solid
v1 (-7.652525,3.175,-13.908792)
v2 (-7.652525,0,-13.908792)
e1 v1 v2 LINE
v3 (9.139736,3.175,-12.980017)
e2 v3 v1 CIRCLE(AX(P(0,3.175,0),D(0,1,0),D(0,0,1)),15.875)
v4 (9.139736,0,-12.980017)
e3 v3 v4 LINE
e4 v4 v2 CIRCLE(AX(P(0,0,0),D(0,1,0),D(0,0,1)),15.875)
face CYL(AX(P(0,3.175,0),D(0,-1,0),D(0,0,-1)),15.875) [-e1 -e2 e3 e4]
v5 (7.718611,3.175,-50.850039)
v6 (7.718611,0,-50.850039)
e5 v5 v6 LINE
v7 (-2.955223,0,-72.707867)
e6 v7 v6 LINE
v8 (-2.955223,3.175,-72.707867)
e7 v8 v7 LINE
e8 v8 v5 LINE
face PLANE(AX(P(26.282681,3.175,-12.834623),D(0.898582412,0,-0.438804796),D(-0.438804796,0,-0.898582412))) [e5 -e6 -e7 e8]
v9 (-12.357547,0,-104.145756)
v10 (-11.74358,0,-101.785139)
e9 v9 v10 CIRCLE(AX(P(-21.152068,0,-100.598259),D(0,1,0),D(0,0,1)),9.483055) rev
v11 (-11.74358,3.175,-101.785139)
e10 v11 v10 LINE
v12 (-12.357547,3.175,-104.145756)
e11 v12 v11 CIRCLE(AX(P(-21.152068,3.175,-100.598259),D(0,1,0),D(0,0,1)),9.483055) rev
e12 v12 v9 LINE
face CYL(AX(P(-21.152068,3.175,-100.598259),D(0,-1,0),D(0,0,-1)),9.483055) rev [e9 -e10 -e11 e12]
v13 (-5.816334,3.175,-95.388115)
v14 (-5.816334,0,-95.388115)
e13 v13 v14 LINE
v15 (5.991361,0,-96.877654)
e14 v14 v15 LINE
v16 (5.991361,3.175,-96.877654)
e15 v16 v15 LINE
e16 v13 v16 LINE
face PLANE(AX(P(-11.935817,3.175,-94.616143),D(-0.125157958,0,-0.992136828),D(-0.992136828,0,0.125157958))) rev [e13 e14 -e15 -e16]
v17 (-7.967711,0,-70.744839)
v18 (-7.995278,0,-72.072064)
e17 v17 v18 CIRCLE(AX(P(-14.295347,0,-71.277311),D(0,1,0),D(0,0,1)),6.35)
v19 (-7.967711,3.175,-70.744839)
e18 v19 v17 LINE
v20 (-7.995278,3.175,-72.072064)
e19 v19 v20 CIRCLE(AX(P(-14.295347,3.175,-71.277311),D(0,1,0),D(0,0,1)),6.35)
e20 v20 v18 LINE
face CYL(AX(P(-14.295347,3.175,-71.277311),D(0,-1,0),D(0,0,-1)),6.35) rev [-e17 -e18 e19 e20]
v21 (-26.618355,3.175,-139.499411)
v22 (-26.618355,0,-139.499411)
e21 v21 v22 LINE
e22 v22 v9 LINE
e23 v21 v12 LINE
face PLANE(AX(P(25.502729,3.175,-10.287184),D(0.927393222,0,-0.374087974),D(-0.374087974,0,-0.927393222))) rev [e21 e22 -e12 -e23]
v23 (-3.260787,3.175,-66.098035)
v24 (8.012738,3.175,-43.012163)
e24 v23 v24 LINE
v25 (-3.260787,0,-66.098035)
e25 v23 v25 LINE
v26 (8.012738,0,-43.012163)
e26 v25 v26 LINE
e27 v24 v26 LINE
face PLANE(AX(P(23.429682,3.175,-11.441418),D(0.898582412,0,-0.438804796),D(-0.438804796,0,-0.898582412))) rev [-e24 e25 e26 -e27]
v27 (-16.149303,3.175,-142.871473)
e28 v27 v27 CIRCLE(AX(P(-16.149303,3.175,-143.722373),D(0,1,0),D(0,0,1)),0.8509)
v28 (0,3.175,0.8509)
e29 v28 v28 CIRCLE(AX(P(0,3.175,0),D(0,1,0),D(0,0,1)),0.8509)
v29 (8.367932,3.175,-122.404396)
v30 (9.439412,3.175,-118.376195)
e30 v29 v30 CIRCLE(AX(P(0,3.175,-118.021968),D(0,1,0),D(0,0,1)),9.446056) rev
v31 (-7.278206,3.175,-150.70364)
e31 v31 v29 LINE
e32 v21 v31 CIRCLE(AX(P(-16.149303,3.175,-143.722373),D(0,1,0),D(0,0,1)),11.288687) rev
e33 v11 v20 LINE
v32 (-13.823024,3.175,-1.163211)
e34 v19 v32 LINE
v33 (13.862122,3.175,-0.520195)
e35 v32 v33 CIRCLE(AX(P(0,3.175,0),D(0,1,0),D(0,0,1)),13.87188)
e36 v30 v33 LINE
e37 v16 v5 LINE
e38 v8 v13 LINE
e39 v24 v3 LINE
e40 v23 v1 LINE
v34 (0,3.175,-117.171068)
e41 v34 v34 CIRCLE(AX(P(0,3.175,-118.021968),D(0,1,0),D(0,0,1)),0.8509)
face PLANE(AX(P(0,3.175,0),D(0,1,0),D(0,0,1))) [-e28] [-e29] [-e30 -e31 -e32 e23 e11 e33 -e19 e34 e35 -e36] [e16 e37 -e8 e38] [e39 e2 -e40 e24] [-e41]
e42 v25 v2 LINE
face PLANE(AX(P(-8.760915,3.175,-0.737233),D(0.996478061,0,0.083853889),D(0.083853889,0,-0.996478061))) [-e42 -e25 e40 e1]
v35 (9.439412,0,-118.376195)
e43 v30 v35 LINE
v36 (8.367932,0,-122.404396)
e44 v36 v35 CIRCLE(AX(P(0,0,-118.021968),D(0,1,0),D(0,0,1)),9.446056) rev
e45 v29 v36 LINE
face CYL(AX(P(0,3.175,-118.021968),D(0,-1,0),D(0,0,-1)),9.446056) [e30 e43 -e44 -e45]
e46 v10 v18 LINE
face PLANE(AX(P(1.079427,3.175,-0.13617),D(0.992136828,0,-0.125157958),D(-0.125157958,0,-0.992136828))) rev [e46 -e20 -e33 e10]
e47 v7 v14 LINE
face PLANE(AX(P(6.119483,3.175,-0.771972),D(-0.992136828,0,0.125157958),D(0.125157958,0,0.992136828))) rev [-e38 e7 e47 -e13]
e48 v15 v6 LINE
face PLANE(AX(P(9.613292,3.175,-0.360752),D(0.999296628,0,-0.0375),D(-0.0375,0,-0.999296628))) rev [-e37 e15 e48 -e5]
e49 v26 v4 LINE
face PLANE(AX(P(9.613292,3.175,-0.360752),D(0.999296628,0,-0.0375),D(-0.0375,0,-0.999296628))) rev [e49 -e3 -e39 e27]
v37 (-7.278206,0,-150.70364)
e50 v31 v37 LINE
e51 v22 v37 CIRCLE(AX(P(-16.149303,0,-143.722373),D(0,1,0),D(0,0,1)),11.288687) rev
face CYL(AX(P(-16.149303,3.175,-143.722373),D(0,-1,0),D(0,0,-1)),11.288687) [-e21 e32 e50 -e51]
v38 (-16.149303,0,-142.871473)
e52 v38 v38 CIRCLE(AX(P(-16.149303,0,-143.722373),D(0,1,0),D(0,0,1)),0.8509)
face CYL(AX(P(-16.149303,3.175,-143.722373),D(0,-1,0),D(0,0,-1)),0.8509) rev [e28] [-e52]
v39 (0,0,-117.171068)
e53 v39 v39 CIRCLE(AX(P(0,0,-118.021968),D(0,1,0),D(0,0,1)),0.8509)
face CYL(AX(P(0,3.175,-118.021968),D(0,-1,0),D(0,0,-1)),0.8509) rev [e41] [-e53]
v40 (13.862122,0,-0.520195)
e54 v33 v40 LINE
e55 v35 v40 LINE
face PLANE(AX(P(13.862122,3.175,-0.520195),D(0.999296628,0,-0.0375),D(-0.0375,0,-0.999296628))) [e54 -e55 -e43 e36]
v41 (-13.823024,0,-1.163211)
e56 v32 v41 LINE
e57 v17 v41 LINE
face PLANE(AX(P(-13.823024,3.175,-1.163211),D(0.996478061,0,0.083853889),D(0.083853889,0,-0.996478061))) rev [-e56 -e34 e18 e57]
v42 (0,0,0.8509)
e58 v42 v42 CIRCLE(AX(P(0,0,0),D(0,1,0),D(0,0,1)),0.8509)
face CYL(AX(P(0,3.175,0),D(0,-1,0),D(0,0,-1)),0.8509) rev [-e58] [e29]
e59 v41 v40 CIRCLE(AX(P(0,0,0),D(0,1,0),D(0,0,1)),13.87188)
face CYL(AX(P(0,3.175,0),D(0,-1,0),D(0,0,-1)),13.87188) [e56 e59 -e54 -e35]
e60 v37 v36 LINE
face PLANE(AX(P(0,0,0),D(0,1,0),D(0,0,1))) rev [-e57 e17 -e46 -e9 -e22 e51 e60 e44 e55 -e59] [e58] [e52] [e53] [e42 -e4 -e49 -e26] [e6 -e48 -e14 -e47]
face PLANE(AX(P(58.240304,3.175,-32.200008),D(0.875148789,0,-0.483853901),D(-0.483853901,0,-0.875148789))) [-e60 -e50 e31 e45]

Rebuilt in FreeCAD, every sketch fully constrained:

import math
import FreeCAD as App
import Part
import Sketcher
from FreeCAD import Vector
Q = App.Units.Quantity

doc = App.newDocument("Part")
body = doc.addObject("PartDesign::Body", "Body")

sketch1 = body.newObject("Sketcher::SketchObject", "Sketch")
sketch1.AttachmentSupport = (doc.getObject("XZ_Plane"), [""])
sketch1.MapMode = "FlatFace"
sketch1.addGeometry([
    Part.LineSegment(Vector(-26.6, -139.5, 0), Vector(-12.4, -104.1, 0)),
    Part.ArcOfCircle(Part.Circle(Vector(-21.2, -100.6, 0), Vector(0, 0, 1), 9.5), math.radians(-21.97), math.radians(-7.19)),
    Part.LineSegment(Vector(-11.7, -101.8, 0), Vector(-8, -72.1, 0)),
    Part.ArcOfCircle(Part.Circle(Vector(-14.3, -71.3, 0), Vector(0, 0, 1), 6.3), math.radians(-7.19), math.radians(4.81)),
    Part.LineSegment(Vector(-8, -70.7, 0), Vector(-13.8, -1.2, 0)),
    Part.ArcOfCircle(Part.Circle(Vector(0, 0, 0), Vector(0, 0, 1), 13.9), math.radians(-2), math.radians(185)),
    Part.LineSegment(Vector(13.9, -0.5, 0), Vector(11.1, -73.1, 0)),
    Part.LineSegment(Vector(11.1, -73.1, 0), Vector(9.4, -118.4, 0)),
    Part.ArcOfCircle(Part.Circle(Vector(0, -118, 0), Vector(0, 0, 1), 9.4), math.radians(-28), math.radians(-2)),
    Part.LineSegment(Vector(8.4, -122.4, 0), Vector(-7.3, -150.7, 0)),
    Part.ArcOfCircle(Part.Circle(Vector(-16.1, -143.7, 0), Vector(0, 0, 1), 11.3), math.radians(158), math.radians(322)),
    Part.Circle(Vector(0, 0, 0), Vector(0, 0, 1), 0.9),
    Part.LineSegment(Vector(-7.7, -13.9, 0), Vector(-3.3, -66.1, 0)),
    Part.LineSegment(Vector(-3.3, -66.1, 0), Vector(8, -43, 0)),
    Part.LineSegment(Vector(8, -43, 0), Vector(9.1, -13, 0)),
    Part.ArcOfCircle(Part.Circle(Vector(0, 0, 0), Vector(0, 0, 1), 15.9), math.radians(-119), math.radians(-55)),
    Part.LineSegment(Vector(6, -96.9, 0), Vector(7.7, -50.9, 0)),
    Part.LineSegment(Vector(7.7, -50.9, 0), Vector(-3, -72.7, 0)),
    Part.LineSegment(Vector(-3, -72.7, 0), Vector(-5.8, -95.4, 0)),
    Part.LineSegment(Vector(-5.8, -95.4, 0), Vector(6, -96.9, 0)),
    Part.Circle(Vector(-16.1, -143.7, 0), Vector(0, 0, 1), 0.9),
    Part.Circle(Vector(0, -118, 0), Vector(0, 0, 1), 0.9),
], False)
sketch1.addConstraint([
    Sketcher.Constraint("Tangent", 0, 2, 1, 1),
    Sketcher.Constraint("Tangent", 1, 2, 2, 1),
    Sketcher.Constraint("Tangent", 2, 2, 3, 1),
    Sketcher.Constraint("Tangent", 3, 2, 4, 1),
    Sketcher.Constraint("Tangent", 4, 2, 5, 2),
    Sketcher.Constraint("Tangent", 5, 1, 6, 1),
    Sketcher.Constraint("Coincident", 6, 2, 7, 1),
    Sketcher.Constraint("Tangent", 7, 2, 8, 2),
    Sketcher.Constraint("Coincident", 8, 1, 9, 1),
    Sketcher.Constraint("Coincident", 9, 2, 10, 2),
    Sketcher.Constraint("Tangent", 10, 1, 0, 1),
    Sketcher.Constraint("Coincident", 12, 2, 13, 1),
    Sketcher.Constraint("Coincident", 13, 2, 14, 1),
    Sketcher.Constraint("Coincident", 14, 2, 15, 2),
    Sketcher.Constraint("Coincident", 15, 1, 12, 1),
    Sketcher.Constraint("Coincident", 16, 2, 17, 1),
    Sketcher.Constraint("Coincident", 17, 2, 18, 1),
    Sketcher.Constraint("Coincident", 18, 2, 19, 1),
    Sketcher.Constraint("Coincident", 19, 2, 16, 1),
    Sketcher.Constraint("Coincident", 5, 3, -1, 1),
    Sketcher.Constraint("Coincident", 11, 3, -1, 1),
    Sketcher.Constraint("Coincident", 15, 3, -1, 1),
    Sketcher.Constraint("Coincident", 20, 3, 10, 3),
    Sketcher.Constraint("Coincident", 21, 3, 8, 3),
    Sketcher.Constraint("Equal", 11, 20),
    Sketcher.Constraint("Equal", 20, 21),
    Sketcher.Constraint("PointOnObject", 8, 3, -2),
    Sketcher.Constraint("Parallel", 6, 7),
    Sketcher.Constraint("Parallel", 4, 12),
    Sketcher.Constraint("Parallel", 7, 14),
    Sketcher.Constraint("Parallel", 14, 16),
    Sketcher.Constraint("Parallel", 13, 17),
    Sketcher.Constraint("Parallel", 2, 18),
    Sketcher.Constraint("Perpendicular", 18, 19),
    Sketcher.Constraint("Radius", 3, Q("0.25 in")),
    Sketcher.Constraint("Diameter", 11, Q("0.067 in")),
    Sketcher.Constraint("Radius", 15, Q("0.625 in")),
    Sketcher.Constraint("Distance", 18, Q("0.9 in")),
    Sketcher.Constraint("Radius", 5, Q("13.87188 mm")),
    Sketcher.Constraint("Distance", 14, Q("1.1832002 in")),
    Sketcher.Constraint("Radius", 1, Q("9.483055 mm")),
    Sketcher.Constraint("Radius", 8, Q("9.446056 mm")),
    Sketcher.Constraint("Radius", 10, Q("11.288687 mm")),
    Sketcher.Constraint("Distance", 12, Q("52.3737 mm")),
    Sketcher.Constraint("DistanceX", 3, 3, 0, 2, Q("1.9378 mm")),
    Sketcher.Constraint("DistanceX", 1, 2, 2, 2, Q("3.748301 mm")),
    Sketcher.Constraint("DistanceY", 1, 2, 3, 2, Q("31.0403 mm")),
    Sketcher.Constraint("DistanceY", 3, 3, 4, 2, Q("70.1141 mm")),
    Sketcher.Constraint("DistanceY", 8, 1, 7, 2, Q("4.028201 mm")),
    Sketcher.Constraint("DistanceY", 2, 2, 13, 2, Q("29.059901 mm")),
    Sketcher.Constraint("DistanceX", 4, 2, 15, 1, Q("6.170499 mm")),
    Sketcher.Constraint("DistanceY", 3, 2, 16, 2, Q("19.8948 mm")),
    Sketcher.Constraint("DistanceY", 0, 2, 19, 2, Q("7.268102 mm")),
    Sketcher.Constraint("Distance", 6, Q("72.64153 mm")),
    Sketcher.Constraint("Distance", 17, Q("24.324789 mm")),
    Sketcher.Constraint("DistanceY", 8, 3, -1, 1, Q("118.021968 mm")),
    Sketcher.Constraint("DistanceY", 9, 2, -1, 1, Q("150.70364 mm")),
    Sketcher.Constraint("DistanceY", 10, 1, -1, 1, Q("139.499411 mm")),
    Sketcher.Constraint("DistanceX", -1, 1, 16, 2, Q("7.718611 mm")),
])
pad1 = body.newObject("PartDesign::Pad", "Pad")
pad1.Profile = sketch1
pad1.Length = Q("0.125 in")
pad1.Reversed = True

doc.recompute()
